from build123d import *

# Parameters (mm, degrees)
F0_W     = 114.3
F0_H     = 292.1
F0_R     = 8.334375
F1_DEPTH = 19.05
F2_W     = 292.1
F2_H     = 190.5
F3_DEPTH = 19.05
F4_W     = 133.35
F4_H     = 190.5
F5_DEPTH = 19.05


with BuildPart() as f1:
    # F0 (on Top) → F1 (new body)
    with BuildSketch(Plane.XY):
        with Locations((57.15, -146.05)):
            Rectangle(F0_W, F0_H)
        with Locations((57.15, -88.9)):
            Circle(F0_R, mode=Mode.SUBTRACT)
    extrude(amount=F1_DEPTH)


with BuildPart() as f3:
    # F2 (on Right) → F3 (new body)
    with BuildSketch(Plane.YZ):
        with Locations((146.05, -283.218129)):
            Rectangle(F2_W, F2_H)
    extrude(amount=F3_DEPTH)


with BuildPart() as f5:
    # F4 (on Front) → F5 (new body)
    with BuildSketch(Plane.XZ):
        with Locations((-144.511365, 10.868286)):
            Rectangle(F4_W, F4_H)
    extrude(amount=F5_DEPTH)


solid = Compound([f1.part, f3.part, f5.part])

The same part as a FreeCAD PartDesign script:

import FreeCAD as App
import Part
import Sketcher
from FreeCAD import Vector
Q = App.Units.Quantity

doc = App.newDocument("Part")
params = doc.addObject("Spreadsheet::Sheet", "Params")
for row, (alias, value) in enumerate([
    ("sketch1_diameter", "0.65625 in"),
    ("sketch1_width", "4.5 in"),
    ("sketch1_height", "11.5 in"),
    ("pad1_length", "0.75 in"),
    ("sketch2_width", "11.5 in"),
    ("sketch2_height", "7.5 in"),
    ("pad2_length", "0.75 in"),
    ("sketch3_height", "7.5 in"),
    ("sketch3_width", "5.25 in"),
    ("pad3_length", "0.75 in"),
], start=1):
    params.set(f"A{row}", alias)
    params.set(f"B{row}", "=" + value)
    params.setAlias(f"B{row}", alias)

body = doc.addObject("PartDesign::Body", "Body")

# Sketch on XY plane
sketch1 = doc.addObject("Sketcher::SketchObject", "Sketch")
body.addObject(sketch1)
sketch1.AttachmentSupport = (doc.XY_Plane, [""])
sketch1.MapMode = "FlatFace"
sketch1.addGeometry(Part.LineSegment(Vector(0, 0, 0), Vector(0, -292, 0)), False)
sketch1.addGeometry(Part.LineSegment(Vector(0, -292, 0), Vector(114, -292, 0)), False)
sketch1.addGeometry(Part.LineSegment(Vector(114, -292, 0), Vector(114, 0, 0)), False)
sketch1.addGeometry(Part.LineSegment(Vector(114, 0, 0), Vector(0, 0, 0)), False)
sketch1.addGeometry(Part.Circle(Vector(57, -89, 0), Vector(0, 0, 1), 8), False)
sketch1.addConstraint(Sketcher.Constraint("Coincident", 0, 2, 1, 1))
sketch1.addConstraint(Sketcher.Constraint("Coincident", 1, 2, 2, 1))
sketch1.addConstraint(Sketcher.Constraint("Coincident", 2, 2, 3, 1))
sketch1.addConstraint(Sketcher.Constraint("Coincident", 3, 2, 0, 1))
sketch1.addConstraint(Sketcher.Constraint("Vertical", 0))
sketch1.addConstraint(Sketcher.Constraint("Horizontal", 1))
sketch1.addConstraint(Sketcher.Constraint("Vertical", 2))
sketch1.addConstraint(Sketcher.Constraint("Horizontal", 3))
sketch1.addConstraint(Sketcher.Constraint("Coincident", 3, 2, -1, 1))
sketch1.addConstraint(Sketcher.Constraint("Diameter", 4, Q("0.65625 in")))
sketch1.addConstraint(Sketcher.Constraint("DistanceX", 1, 1, 1, 2, Q("4.5 in")))
sketch1.addConstraint(Sketcher.Constraint("DistanceY", 0, 2, 0, 1, Q("11.5 in")))
sketch1.addConstraint(Sketcher.Constraint("DistanceY", 0, 2, 4, 3, Q("8 in")))
sketch1.addConstraint(Sketcher.Constraint("DistanceX", -1, 1, 4, 3, Q("2.25 in")))
sketch1.setExpression("Constraints[9]", "Params.sketch1_diameter")
sketch1.setExpression("Constraints[10]", "Params.sketch1_width")
sketch1.setExpression("Constraints[11]", "Params.sketch1_height")
pad1 = doc.addObject("PartDesign::Pad", "Pad")
body.addObject(pad1)
pad1.Profile = sketch1
pad1.setExpression("Length", "Params.pad1_length")
body2 = doc.addObject("PartDesign::Body", "Body001")

# Sketch on YZ plane
sketch2 = doc.addObject("Sketcher::SketchObject", "Sketch001")
body2.addObject(sketch2)
sketch2.AttachmentSupport = (doc.getObject("YZ_Plane001"), [""])
sketch2.MapMode = "FlatFace"
sketch2.addGeometry(Part.LineSegment(Vector(0, -188, 0), Vector(0, -378, 0)), False)
sketch2.addGeometry(Part.LineSegment(Vector(0, -378, 0), Vector(292, -378, 0)), False)
sketch2.addGeometry(Part.LineSegment(Vector(292, -378, 0), Vector(292, -188, 0)), False)
sketch2.addGeometry(Part.LineSegment(Vector(292, -188, 0), Vector(0, -188, 0)), False)
sketch2.addConstraint(Sketcher.Constraint("Coincident", 0, 2, 1, 1))
sketch2.addConstraint(Sketcher.Constraint("Coincident", 1, 2, 2, 1))
sketch2.addConstraint(Sketcher.Constraint("Coincident", 2, 2, 3, 1))
sketch2.addConstraint(Sketcher.Constraint("Coincident", 3, 2, 0, 1))
sketch2.addConstraint(Sketcher.Constraint("Vertical", 0))
sketch2.addConstraint(Sketcher.Constraint("Horizontal", 1))
sketch2.addConstraint(Sketcher.Constraint("Vertical", 2))
sketch2.addConstraint(Sketcher.Constraint("Horizontal", 3))
sketch2.addConstraint(Sketcher.Constraint("PointOnObject", 0, 2, -2))
sketch2.addConstraint(Sketcher.Constraint("DistanceX", 1, 1, 1, 2, Q("11.5 in")))
sketch2.addConstraint(Sketcher.Constraint("DistanceY", 0, 2, 0, 1, Q("7.5 in")))
sketch2.addConstraint(Sketcher.Constraint("DistanceY", 0, 2, -1, 1, 378.468129))
sketch2.setExpression("Constraints[9]", "Params.sketch2_width")
sketch2.setExpression("Constraints[10]", "Params.sketch2_height")
pad2 = doc.addObject("PartDesign::Pad", "Pad001")
body2.addObject(pad2)
pad2.Profile = sketch2
pad2.setExpression("Length", "Params.pad2_length")
body3 = doc.addObject("PartDesign::Body", "Body002")

# Sketch on XZ plane
sketch3 = doc.addObject("Sketcher::SketchObject", "Sketch002")
body3.addObject(sketch3)
sketch3.AttachmentSupport = (doc.getObject("XZ_Plane002"), [""])
sketch3.MapMode = "FlatFace"
sketch3.addGeometry(Part.LineSegment(Vector(-211, 106, 0), Vector(-211, -84, 0)), False)
sketch3.addGeometry(Part.LineSegment(Vector(-211, -84, 0), Vector(-78, -84, 0)), False)
sketch3.addGeometry(Part.LineSegment(Vector(-78, -84, 0), Vector(-78, 106, 0)), False)
sketch3.addGeometry(Part.LineSegment(Vector(-78, 106, 0), Vector(-211, 106, 0)), False)
sketch3.addConstraint(Sketcher.Constraint("Coincident", 0, 2, 1, 1))
sketch3.addConstraint(Sketcher.Constraint("Coincident", 1, 2, 2, 1))
sketch3.addConstraint(Sketcher.Constraint("Coincident", 2, 2, 3, 1))
sketch3.addConstraint(Sketcher.Constraint("Coincident", 3, 2, 0, 1))
sketch3.addConstraint(Sketcher.Constraint("Vertical", 0))
sketch3.addConstraint(Sketcher.Constraint("Horizontal", 1))
sketch3.addConstraint(Sketcher.Constraint("Vertical", 2))
sketch3.addConstraint(Sketcher.Constraint("Horizontal", 3))
sketch3.addConstraint(Sketcher.Constraint("DistanceY", 0, 2, 0, 1, Q("7.5 in")))
sketch3.addConstraint(Sketcher.Constraint("DistanceX", 1, 1, 1, 2, Q("5.25 in")))
sketch3.addConstraint(Sketcher.Constraint("DistanceX", 0, 2, -1, 1, 211.186365))
sketch3.addConstraint(Sketcher.Constraint("DistanceY", 0, 2, -1, 1, 84.381714))
sketch3.setExpression("Constraints[8]", "Params.sketch3_height")
sketch3.setExpression("Constraints[9]", "Params.sketch3_width")
pad3 = doc.addObject("PartDesign::Pad", "Pad002")
body3.addObject(pad3)
pad3.Profile = sketch3
pad3.setExpression("Length", "Params.pad3_length")

doc.recompute()
